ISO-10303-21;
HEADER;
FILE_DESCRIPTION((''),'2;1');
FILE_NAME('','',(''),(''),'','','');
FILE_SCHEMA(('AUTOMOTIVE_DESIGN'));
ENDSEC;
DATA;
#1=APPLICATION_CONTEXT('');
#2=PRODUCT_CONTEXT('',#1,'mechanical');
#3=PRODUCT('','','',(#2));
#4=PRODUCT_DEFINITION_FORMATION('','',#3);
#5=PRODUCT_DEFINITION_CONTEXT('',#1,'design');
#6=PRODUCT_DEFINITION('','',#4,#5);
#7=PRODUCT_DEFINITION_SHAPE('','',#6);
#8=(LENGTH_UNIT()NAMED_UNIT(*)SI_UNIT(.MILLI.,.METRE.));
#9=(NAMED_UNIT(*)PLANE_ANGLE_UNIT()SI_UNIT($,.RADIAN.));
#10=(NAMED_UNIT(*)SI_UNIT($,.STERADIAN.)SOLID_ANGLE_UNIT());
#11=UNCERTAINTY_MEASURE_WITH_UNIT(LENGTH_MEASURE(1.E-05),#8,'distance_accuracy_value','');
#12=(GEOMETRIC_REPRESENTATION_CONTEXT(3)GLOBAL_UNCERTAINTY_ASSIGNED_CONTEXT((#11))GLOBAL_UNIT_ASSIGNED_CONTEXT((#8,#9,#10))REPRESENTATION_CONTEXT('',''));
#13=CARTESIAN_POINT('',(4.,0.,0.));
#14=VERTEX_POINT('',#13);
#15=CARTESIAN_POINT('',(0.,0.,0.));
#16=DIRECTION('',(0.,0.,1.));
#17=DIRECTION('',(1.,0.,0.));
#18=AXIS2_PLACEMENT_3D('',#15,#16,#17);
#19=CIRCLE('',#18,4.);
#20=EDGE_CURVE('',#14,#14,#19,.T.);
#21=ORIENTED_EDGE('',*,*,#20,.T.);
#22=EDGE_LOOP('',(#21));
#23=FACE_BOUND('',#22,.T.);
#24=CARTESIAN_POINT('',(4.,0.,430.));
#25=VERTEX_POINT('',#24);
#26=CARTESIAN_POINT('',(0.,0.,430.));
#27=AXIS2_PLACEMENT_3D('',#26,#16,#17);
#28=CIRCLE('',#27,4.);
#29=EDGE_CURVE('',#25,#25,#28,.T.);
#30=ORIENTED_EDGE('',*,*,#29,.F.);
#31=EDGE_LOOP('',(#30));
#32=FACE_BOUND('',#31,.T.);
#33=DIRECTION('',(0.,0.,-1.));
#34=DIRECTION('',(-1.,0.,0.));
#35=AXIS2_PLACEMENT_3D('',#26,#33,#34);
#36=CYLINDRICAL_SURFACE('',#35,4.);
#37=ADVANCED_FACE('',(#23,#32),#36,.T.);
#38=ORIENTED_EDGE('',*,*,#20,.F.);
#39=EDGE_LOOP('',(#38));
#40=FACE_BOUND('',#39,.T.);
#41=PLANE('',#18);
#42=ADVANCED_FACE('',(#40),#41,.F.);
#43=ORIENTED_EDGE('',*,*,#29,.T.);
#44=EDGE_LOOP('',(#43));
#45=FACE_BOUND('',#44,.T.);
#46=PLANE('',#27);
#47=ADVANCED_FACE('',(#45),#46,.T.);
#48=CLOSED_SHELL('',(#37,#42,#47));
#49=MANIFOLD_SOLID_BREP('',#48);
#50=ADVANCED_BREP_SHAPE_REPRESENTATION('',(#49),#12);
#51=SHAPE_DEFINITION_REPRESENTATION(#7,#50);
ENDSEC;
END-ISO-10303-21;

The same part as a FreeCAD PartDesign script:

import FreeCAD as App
import Part
import Sketcher

doc = App.newDocument("Part")
params = doc.addObject("Spreadsheet::Sheet", "Params")
for row, (alias, value) in enumerate([
    ("sketch1_diameter", "8 mm"),
    ("pad1_length", "430 mm"),
], start=1):
    params.set(f"A{row}", alias)
    params.set(f"B{row}", "=" + value)
    params.setAlias(f"B{row}", alias)

body = doc.addObject("PartDesign::Body", "Body")

# Sketch on XY plane
sketch1 = doc.addObject("Sketcher::SketchObject", "Sketch")
body.addObject(sketch1)
sketch1.AttachmentSupport = (doc.XY_Plane, [""])
sketch1.MapMode = "FlatFace"
sketch1.addGeometry(Part.Circle(App.Vector(0, 0, 0), App.Vector(0, 0, 1), 4), False)
sketch1.addConstraint([
    Sketcher.Constraint("Coincident", 0, 3, -1, 1),
    Sketcher.Constraint("Diameter", 0, 8.0),
])
sketch1.setExpression("Constraints[1]", "Params.sketch1_diameter")
pad1 = doc.addObject("PartDesign::Pad", "Pad")
body.addObject(pad1)
pad1.Profile = sketch1
pad1.setExpression("Length", "Params.pad1_length")

doc.recompute()
